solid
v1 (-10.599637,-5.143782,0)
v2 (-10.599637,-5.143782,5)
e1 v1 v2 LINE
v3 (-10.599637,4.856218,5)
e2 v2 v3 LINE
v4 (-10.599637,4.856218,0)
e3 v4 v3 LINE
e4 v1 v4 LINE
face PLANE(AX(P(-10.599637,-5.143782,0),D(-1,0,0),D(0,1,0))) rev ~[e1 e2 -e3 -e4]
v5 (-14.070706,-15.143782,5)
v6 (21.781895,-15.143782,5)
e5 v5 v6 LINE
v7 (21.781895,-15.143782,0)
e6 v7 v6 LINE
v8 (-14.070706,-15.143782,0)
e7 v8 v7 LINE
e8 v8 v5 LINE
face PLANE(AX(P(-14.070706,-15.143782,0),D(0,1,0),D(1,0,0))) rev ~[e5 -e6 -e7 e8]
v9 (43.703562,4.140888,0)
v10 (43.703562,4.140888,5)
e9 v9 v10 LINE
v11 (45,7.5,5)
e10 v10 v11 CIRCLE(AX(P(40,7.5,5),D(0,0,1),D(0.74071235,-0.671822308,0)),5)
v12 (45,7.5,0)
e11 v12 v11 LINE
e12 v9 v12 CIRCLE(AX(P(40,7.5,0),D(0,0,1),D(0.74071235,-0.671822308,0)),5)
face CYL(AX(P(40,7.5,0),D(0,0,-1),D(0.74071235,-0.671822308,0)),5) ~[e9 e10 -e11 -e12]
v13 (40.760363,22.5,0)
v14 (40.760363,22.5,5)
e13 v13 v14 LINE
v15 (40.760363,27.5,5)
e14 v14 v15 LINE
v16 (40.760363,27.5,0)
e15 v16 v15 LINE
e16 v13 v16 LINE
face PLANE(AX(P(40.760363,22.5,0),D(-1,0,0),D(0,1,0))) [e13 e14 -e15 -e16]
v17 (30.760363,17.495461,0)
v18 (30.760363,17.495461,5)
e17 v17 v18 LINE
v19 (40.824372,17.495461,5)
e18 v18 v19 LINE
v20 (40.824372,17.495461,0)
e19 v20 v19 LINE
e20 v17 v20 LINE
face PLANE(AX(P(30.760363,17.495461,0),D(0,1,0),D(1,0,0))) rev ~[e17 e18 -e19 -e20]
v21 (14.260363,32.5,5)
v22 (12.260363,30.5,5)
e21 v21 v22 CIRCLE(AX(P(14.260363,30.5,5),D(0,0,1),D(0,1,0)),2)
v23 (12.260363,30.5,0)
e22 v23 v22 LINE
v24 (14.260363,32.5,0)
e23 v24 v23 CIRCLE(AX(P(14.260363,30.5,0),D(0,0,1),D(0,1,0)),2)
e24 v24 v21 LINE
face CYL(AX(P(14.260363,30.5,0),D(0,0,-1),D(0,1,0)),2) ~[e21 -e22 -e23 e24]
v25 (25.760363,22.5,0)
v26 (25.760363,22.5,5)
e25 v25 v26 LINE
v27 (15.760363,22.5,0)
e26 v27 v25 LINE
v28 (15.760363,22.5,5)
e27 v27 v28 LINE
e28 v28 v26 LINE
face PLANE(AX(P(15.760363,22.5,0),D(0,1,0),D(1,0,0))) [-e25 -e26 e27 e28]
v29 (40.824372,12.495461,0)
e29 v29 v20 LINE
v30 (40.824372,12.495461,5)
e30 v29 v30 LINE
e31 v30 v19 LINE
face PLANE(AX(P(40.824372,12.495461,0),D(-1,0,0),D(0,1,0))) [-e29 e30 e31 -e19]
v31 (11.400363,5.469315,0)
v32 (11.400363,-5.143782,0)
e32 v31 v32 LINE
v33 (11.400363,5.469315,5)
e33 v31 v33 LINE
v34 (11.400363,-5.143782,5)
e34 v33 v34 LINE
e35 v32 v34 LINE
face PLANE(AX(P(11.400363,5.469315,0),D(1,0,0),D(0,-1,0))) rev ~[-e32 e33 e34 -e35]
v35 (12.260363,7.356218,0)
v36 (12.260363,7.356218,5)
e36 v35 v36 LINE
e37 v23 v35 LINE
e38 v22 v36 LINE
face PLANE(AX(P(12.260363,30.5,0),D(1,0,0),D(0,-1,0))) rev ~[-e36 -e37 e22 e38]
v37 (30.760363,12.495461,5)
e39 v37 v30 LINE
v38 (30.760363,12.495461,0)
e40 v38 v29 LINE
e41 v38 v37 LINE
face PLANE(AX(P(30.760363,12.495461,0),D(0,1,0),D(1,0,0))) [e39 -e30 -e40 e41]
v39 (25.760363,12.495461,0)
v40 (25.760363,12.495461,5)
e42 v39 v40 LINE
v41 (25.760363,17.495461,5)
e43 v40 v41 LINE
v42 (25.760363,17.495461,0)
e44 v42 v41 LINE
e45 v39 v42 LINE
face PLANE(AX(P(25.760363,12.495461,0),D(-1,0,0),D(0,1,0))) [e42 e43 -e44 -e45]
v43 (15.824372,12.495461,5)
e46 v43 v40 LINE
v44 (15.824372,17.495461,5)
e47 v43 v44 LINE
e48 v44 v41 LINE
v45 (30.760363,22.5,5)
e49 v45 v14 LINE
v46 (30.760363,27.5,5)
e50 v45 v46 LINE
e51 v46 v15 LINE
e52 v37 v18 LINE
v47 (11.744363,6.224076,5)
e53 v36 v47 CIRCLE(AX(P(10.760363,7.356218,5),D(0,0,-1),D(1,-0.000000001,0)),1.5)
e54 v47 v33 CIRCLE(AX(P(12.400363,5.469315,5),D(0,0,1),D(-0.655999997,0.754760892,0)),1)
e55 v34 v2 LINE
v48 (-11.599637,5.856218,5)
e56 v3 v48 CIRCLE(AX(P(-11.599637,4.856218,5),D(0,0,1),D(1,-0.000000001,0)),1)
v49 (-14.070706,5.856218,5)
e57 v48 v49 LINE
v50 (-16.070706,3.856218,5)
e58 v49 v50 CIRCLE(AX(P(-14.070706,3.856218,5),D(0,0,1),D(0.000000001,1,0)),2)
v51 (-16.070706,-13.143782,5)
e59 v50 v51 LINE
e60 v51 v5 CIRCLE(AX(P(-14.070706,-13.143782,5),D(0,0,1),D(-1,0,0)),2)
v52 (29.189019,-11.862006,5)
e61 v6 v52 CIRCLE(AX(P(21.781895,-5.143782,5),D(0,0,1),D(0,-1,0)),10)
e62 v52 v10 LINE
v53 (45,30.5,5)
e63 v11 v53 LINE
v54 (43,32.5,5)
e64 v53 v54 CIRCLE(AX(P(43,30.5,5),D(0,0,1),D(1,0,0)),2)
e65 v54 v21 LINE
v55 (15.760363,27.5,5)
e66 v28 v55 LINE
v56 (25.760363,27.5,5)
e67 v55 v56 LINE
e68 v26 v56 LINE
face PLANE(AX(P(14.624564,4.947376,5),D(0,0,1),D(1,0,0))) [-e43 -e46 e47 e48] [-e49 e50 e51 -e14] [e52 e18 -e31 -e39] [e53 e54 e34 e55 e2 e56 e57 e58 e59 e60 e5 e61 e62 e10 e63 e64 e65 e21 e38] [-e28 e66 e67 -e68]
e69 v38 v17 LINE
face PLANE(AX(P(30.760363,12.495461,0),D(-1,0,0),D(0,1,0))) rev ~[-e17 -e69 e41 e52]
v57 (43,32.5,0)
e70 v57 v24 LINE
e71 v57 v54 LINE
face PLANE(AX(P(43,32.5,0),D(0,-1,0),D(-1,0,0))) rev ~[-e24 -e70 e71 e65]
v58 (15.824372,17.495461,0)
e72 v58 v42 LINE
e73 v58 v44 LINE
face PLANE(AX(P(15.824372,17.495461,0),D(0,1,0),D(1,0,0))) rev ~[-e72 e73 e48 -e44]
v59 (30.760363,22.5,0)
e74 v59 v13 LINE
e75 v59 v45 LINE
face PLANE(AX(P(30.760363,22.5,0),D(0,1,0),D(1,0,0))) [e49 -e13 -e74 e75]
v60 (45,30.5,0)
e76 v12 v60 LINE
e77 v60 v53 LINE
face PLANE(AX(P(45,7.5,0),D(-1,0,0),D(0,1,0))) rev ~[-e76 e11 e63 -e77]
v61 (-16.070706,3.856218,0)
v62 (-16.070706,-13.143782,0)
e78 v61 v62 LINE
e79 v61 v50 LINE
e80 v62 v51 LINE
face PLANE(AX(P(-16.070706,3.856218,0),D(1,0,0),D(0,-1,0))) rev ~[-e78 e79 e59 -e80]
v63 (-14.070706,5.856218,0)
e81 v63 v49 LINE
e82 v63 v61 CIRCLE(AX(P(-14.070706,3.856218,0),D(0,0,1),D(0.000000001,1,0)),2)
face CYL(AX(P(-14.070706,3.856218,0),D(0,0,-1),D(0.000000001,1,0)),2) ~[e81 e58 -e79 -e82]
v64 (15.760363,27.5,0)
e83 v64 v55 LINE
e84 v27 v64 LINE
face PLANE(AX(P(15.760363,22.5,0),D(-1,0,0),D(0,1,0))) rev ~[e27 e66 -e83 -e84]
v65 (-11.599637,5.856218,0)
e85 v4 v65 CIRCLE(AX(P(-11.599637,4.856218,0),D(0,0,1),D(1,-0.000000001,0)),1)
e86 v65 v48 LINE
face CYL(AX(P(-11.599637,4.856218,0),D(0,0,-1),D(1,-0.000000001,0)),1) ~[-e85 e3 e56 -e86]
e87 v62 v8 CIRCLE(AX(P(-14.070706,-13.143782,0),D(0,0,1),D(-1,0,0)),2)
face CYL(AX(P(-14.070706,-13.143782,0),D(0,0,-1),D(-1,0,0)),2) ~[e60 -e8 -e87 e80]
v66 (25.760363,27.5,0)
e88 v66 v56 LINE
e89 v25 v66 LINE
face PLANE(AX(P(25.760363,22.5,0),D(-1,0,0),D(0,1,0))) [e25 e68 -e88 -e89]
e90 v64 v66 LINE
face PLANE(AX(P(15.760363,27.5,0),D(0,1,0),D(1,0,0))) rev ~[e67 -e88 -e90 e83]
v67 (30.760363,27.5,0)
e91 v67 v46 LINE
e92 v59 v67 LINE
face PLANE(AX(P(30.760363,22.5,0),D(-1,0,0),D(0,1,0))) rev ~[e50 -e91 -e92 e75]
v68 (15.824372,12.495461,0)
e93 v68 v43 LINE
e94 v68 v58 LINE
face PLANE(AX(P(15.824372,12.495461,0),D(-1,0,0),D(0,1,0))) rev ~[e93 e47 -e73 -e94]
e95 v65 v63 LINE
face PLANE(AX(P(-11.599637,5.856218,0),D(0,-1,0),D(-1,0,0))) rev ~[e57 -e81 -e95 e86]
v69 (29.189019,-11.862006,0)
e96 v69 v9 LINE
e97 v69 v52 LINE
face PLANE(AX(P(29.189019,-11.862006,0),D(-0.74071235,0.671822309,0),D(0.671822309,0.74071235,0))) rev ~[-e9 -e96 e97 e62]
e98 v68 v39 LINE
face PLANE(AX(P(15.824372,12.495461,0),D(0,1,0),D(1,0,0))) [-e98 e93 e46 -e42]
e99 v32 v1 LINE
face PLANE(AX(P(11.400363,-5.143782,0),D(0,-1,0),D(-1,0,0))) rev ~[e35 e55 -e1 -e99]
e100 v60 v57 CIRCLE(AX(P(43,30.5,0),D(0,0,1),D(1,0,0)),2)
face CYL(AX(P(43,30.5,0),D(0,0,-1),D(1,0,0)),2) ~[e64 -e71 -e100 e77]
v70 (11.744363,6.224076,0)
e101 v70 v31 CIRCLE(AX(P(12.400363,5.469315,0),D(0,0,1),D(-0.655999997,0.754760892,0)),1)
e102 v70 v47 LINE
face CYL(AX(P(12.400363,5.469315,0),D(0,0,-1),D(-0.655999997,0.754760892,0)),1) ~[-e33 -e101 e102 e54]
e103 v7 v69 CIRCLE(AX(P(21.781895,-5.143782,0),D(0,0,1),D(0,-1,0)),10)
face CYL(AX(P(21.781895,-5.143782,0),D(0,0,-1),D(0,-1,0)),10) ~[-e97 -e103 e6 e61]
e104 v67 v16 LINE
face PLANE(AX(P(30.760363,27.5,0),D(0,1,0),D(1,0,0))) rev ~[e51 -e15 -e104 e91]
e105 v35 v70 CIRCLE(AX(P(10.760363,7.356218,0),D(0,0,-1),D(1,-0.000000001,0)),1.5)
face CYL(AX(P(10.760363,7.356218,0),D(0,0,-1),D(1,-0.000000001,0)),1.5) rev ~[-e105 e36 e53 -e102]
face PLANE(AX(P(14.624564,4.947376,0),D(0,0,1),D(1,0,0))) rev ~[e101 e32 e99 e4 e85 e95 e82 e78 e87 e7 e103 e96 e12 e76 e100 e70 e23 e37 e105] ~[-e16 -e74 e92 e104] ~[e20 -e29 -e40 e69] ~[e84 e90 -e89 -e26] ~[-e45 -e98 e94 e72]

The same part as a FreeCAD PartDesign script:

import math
import FreeCAD as App
import Part
import Sketcher
from FreeCAD import Vector
Q = App.Units.Quantity


def add_polygon(sketch, points):
    """Adds a closed chain of lines whose ends are joined by coincident constraints."""
    first, n = sketch.GeometryCount, len(points)
    for a, b in zip(points, points[1:] + points[:1]):
        sketch.addGeometry(Part.LineSegment(App.Vector(*a, 0), App.Vector(*b, 0)), False)
    for i in range(n):
        sketch.addConstraint(Sketcher.Constraint("Coincident", first + i, 2, first + (i + 1) % n, 1))

doc = App.newDocument("Part")
body = doc.addObject("PartDesign::Body", "Body")

sketch1 = body.newObject("Sketcher::SketchObject", "Sketch")
sketch1.AttachmentSupport = (doc.getObject("XY_Plane"), [""])
sketch1.MapMode = "FlatFace"
sketch1.addGeometry(Part.LineSegment(Vector(45, 7.5, 0), Vector(45, 30.5, 0)), False)
sketch1.addGeometry(Part.ArcOfCircle(Part.Circle(Vector(43, 30.5, 0), Vector(0, 0, 1), 2), math.radians(0), math.radians(90)), False)
sketch1.addGeometry(Part.LineSegment(Vector(43, 32.5, 0), Vector(14.260363, 32.5, 0)), False)
sketch1.addGeometry(Part.ArcOfCircle(Part.Circle(Vector(14.260363, 30.5, 0), Vector(0, 0, 1), 2), math.radians(90), math.radians(180)), False)
sketch1.addGeometry(Part.LineSegment(Vector(12.260363, 30.5, 0), Vector(12.260363, 7.356218, 0)), False)
sketch1.addGeometry(Part.ArcOfCircle(Part.Circle(Vector(10.760363, 7.356218, 0), Vector(0, 0, 1), 1.5), math.radians(-49.004481), math.radians(0)), False)
sketch1.addGeometry(Part.ArcOfCircle(Part.Circle(Vector(12.400363, 5.469315, 0), Vector(0, 0, 1), 1), math.radians(130.995519), math.radians(180)), False)
sketch1.addGeometry(Part.LineSegment(Vector(11.400363, 5.469315, 0), Vector(11.400363, -5.143782, 0)), False)
sketch1.addGeometry(Part.LineSegment(Vector(11.400363, -5.143782, 0), Vector(-10.599637, -5.143782, 0)), False)
sketch1.addGeometry(Part.LineSegment(Vector(-10.599637, -5.143782, 0), Vector(-10.599637, 4.856218, 0)), False)
sketch1.addGeometry(Part.ArcOfCircle(Part.Circle(Vector(-11.599637, 4.856218, 0), Vector(0, 0, 1), 1), math.radians(0), math.radians(90)), False)
sketch1.addGeometry(Part.LineSegment(Vector(-11.599637, 5.856218, 0), Vector(-14.070706, 5.856218, 0)), False)
sketch1.addGeometry(Part.ArcOfCircle(Part.Circle(Vector(-14.070706, 3.856218, 0), Vector(0, 0, 1), 2), math.radians(90), math.radians(180)), False)
sketch1.addGeometry(Part.LineSegment(Vector(-16.070706, 3.856218, 0), Vector(-16.070706, -13.143782, 0)), False)
sketch1.addGeometry(Part.ArcOfCircle(Part.Circle(Vector(-14.070706, -13.143782, 0), Vector(0, 0, 1), 2), math.radians(180), math.radians(270)), False)
sketch1.addGeometry(Part.LineSegment(Vector(-14.070706, -15.143782, 0), Vector(21.781895, -15.143782, 0)), False)
sketch1.addGeometry(Part.ArcOfCircle(Part.Circle(Vector(21.781895, -5.143782, 0), Vector(0, 0, 1), 10), math.radians(-90), math.radians(-42.207868)), False)
sketch1.addGeometry(Part.LineSegment(Vector(29.189019, -11.862006, 0), Vector(43.703562, 4.140888, 0)), False)
sketch1.addGeometry(Part.ArcOfCircle(Part.Circle(Vector(40, 7.5, 0), Vector(0, 0, 1), 5), math.radians(-42.207868), math.radians(0)), False)
add_polygon(sketch1, [(25.760363, 12.495461), (15.824372, 12.495461), (15.824372, 17.495461), (25.760363, 17.495461)])
add_polygon(sketch1, [(40.824372, 12.495461), (30.760363, 12.495461), (30.760363, 17.495461), (40.824372, 17.495461)])
add_polygon(sketch1, [(25.760363, 22.5), (15.760363, 22.5), (15.760363, 27.5), (25.760363, 27.5)])
add_polygon(sketch1, [(40.760363, 22.5), (30.760363, 22.5), (30.760363, 27.5), (40.760363, 27.5)])
sketch1.addConstraint([
    Sketcher.Constraint("Tangent", 0, 2, 1, 1),
    Sketcher.Constraint("Tangent", 1, 2, 2, 1),
    Sketcher.Constraint("Tangent", 2, 2, 3, 1),
    Sketcher.Constraint("Tangent", 3, 2, 4, 1),
    Sketcher.Constraint("Tangent", 4, 2, 5, 2),
    Sketcher.Constraint("Tangent", 5, 1, 6, 1),
    Sketcher.Constraint("Tangent", 6, 2, 7, 1),
    Sketcher.Constraint("Coincident", 7, 2, 8, 1),
    Sketcher.Constraint("Coincident", 8, 2, 9, 1),
    Sketcher.Constraint("Tangent", 9, 2, 10, 1),
    Sketcher.Constraint("Tangent", 10, 2, 11, 1),
    Sketcher.Constraint("Tangent", 11, 2, 12, 1),
    Sketcher.Constraint("Tangent", 12, 2, 13, 1),
    Sketcher.Constraint("Tangent", 13, 2, 14, 1),
    Sketcher.Constraint("Tangent", 14, 2, 15, 1),
    Sketcher.Constraint("Tangent", 15, 2, 16, 1),
    Sketcher.Constraint("Tangent", 16, 2, 17, 1),
    Sketcher.Constraint("Tangent", 17, 2, 18, 1),
    Sketcher.Constraint("Tangent", 18, 2, 0, 1),
    Sketcher.Constraint("Vertical", 0),
    Sketcher.Constraint("Horizontal", 2),
    Sketcher.Constraint("Vertical", 4),
    Sketcher.Constraint("Vertical", 7),
    Sketcher.Constraint("Horizontal", 8),
    Sketcher.Constraint("Vertical", 9),
    Sketcher.Constraint("Horizontal", 11),
    Sketcher.Constraint("Vertical", 13),
    Sketcher.Constraint("Horizontal", 15),
    Sketcher.Constraint("Horizontal", 19),
    Sketcher.Constraint("Vertical", 20),
    Sketcher.Constraint("Horizontal", 21),
    Sketcher.Constraint("Vertical", 22),
    Sketcher.Constraint("Horizontal", 23),
    Sketcher.Constraint("Vertical", 24),
    Sketcher.Constraint("Horizontal", 25),
    Sketcher.Constraint("Vertical", 26),
    Sketcher.Constraint("Horizontal", 27),
    Sketcher.Constraint("Vertical", 28),
    Sketcher.Constraint("Horizontal", 29),
    Sketcher.Constraint("Vertical", 30),
    Sketcher.Constraint("Horizontal", 31),
    Sketcher.Constraint("Vertical", 32),
    Sketcher.Constraint("Horizontal", 33),
    Sketcher.Constraint("Vertical", 34),
    Sketcher.Constraint("Equal", 1, 3),
    Sketcher.Constraint("Equal", 6, 10),
    Sketcher.Constraint("Equal", 3, 12),
    Sketcher.Constraint("Equal", 12, 14),
    Sketcher.Constraint("Horizontal", 16, 3, 7, 2),
    Sketcher.Constraint("Horizontal", 22, 2, 23, 2),
    Sketcher.Constraint("Horizontal", 21, 2, 24, 2),
    Sketcher.Constraint("Horizontal", 30, 2, 31, 2),
    Sketcher.Constraint("Horizontal", 29, 2, 32, 2),
    Sketcher.Constraint("Vertical", 22, 2, 29, 2),
    Sketcher.Constraint("Vertical", 24, 2, 31, 2),
    Sketcher.Constraint("Equal", 29, 31),
    Sketcher.Constraint("Equal", 33, 9),
    Sketcher.Constraint("Equal", 26, 28),
    Sketcher.Constraint("Radius", 1, Q("2 mm")),
    Sketcher.Constraint("Radius", 6, Q("1 mm")),
    Sketcher.Constraint("Radius", 16, Q("10 mm")),
    Sketcher.Constraint("Radius", 18, Q("5 mm")),
    Sketcher.Constraint("Radius", 5, Q("1.5 mm")),
    Sketcher.Constraint("DistanceX", 8, 2, 8, 1, Q("22 mm")),
    Sketcher.Constraint("DistanceX", 27, 2, 27, 1, Q("10 mm")),
    Sketcher.Constraint("DistanceY", 0, 1, 0, 2, Q("23 mm")),
    Sketcher.Constraint("DistanceY", 20, 1, 20, 2, Q("5 mm")),
    Sketcher.Constraint("DistanceX", -1, 1, 1, 3, Q("43 mm")),
    Sketcher.Constraint("DistanceX", 22, 2, 23, 2, Q("5 mm")),
    Sketcher.Constraint("DistanceY", 27, 2, 3, 3, Q("8 mm")),
    Sketcher.Constraint("DistanceY", -1, 1, 1, 3, Q("30.5 mm")),
    Sketcher.Constraint("DistanceY", 10, 3, 5, 3, Q("2.5 mm")),
    Sketcher.Constraint("DistanceX", 4, 2, 21, 2, Q("13.5 mm")),
    Sketcher.Constraint("DistanceX", 5, 3, 6, 3, Q("1.64 mm")),
    Sketcher.Constraint("DistanceX", 15, 1, 15, 2, Q("35.852601 mm")),
    Sketcher.Constraint("DistanceX", 11, 2, 11, 1, Q("2.471068 mm")),
    Sketcher.Constraint("DistanceX", 19, 2, 19, 1, Q("9.93599 mm")),
    Sketcher.Constraint("DistanceX", 23, 2, 23, 1, Q("10.06401 mm")),
    Sketcher.Constraint("DistanceX", 2, 2, 2, 1, Q("28.739637 mm")),
    Sketcher.Constraint("DistanceY", 4, 2, 4, 1, Q("23.143782 mm")),
    Sketcher.Constraint("DistanceY", -1, 1, 19, 2, Q("12.495461 mm")),
])
pad1 = body.newObject("PartDesign::Pad", "Pad")
pad1.Profile = sketch1
pad1.Length = 5

doc.recompute()
